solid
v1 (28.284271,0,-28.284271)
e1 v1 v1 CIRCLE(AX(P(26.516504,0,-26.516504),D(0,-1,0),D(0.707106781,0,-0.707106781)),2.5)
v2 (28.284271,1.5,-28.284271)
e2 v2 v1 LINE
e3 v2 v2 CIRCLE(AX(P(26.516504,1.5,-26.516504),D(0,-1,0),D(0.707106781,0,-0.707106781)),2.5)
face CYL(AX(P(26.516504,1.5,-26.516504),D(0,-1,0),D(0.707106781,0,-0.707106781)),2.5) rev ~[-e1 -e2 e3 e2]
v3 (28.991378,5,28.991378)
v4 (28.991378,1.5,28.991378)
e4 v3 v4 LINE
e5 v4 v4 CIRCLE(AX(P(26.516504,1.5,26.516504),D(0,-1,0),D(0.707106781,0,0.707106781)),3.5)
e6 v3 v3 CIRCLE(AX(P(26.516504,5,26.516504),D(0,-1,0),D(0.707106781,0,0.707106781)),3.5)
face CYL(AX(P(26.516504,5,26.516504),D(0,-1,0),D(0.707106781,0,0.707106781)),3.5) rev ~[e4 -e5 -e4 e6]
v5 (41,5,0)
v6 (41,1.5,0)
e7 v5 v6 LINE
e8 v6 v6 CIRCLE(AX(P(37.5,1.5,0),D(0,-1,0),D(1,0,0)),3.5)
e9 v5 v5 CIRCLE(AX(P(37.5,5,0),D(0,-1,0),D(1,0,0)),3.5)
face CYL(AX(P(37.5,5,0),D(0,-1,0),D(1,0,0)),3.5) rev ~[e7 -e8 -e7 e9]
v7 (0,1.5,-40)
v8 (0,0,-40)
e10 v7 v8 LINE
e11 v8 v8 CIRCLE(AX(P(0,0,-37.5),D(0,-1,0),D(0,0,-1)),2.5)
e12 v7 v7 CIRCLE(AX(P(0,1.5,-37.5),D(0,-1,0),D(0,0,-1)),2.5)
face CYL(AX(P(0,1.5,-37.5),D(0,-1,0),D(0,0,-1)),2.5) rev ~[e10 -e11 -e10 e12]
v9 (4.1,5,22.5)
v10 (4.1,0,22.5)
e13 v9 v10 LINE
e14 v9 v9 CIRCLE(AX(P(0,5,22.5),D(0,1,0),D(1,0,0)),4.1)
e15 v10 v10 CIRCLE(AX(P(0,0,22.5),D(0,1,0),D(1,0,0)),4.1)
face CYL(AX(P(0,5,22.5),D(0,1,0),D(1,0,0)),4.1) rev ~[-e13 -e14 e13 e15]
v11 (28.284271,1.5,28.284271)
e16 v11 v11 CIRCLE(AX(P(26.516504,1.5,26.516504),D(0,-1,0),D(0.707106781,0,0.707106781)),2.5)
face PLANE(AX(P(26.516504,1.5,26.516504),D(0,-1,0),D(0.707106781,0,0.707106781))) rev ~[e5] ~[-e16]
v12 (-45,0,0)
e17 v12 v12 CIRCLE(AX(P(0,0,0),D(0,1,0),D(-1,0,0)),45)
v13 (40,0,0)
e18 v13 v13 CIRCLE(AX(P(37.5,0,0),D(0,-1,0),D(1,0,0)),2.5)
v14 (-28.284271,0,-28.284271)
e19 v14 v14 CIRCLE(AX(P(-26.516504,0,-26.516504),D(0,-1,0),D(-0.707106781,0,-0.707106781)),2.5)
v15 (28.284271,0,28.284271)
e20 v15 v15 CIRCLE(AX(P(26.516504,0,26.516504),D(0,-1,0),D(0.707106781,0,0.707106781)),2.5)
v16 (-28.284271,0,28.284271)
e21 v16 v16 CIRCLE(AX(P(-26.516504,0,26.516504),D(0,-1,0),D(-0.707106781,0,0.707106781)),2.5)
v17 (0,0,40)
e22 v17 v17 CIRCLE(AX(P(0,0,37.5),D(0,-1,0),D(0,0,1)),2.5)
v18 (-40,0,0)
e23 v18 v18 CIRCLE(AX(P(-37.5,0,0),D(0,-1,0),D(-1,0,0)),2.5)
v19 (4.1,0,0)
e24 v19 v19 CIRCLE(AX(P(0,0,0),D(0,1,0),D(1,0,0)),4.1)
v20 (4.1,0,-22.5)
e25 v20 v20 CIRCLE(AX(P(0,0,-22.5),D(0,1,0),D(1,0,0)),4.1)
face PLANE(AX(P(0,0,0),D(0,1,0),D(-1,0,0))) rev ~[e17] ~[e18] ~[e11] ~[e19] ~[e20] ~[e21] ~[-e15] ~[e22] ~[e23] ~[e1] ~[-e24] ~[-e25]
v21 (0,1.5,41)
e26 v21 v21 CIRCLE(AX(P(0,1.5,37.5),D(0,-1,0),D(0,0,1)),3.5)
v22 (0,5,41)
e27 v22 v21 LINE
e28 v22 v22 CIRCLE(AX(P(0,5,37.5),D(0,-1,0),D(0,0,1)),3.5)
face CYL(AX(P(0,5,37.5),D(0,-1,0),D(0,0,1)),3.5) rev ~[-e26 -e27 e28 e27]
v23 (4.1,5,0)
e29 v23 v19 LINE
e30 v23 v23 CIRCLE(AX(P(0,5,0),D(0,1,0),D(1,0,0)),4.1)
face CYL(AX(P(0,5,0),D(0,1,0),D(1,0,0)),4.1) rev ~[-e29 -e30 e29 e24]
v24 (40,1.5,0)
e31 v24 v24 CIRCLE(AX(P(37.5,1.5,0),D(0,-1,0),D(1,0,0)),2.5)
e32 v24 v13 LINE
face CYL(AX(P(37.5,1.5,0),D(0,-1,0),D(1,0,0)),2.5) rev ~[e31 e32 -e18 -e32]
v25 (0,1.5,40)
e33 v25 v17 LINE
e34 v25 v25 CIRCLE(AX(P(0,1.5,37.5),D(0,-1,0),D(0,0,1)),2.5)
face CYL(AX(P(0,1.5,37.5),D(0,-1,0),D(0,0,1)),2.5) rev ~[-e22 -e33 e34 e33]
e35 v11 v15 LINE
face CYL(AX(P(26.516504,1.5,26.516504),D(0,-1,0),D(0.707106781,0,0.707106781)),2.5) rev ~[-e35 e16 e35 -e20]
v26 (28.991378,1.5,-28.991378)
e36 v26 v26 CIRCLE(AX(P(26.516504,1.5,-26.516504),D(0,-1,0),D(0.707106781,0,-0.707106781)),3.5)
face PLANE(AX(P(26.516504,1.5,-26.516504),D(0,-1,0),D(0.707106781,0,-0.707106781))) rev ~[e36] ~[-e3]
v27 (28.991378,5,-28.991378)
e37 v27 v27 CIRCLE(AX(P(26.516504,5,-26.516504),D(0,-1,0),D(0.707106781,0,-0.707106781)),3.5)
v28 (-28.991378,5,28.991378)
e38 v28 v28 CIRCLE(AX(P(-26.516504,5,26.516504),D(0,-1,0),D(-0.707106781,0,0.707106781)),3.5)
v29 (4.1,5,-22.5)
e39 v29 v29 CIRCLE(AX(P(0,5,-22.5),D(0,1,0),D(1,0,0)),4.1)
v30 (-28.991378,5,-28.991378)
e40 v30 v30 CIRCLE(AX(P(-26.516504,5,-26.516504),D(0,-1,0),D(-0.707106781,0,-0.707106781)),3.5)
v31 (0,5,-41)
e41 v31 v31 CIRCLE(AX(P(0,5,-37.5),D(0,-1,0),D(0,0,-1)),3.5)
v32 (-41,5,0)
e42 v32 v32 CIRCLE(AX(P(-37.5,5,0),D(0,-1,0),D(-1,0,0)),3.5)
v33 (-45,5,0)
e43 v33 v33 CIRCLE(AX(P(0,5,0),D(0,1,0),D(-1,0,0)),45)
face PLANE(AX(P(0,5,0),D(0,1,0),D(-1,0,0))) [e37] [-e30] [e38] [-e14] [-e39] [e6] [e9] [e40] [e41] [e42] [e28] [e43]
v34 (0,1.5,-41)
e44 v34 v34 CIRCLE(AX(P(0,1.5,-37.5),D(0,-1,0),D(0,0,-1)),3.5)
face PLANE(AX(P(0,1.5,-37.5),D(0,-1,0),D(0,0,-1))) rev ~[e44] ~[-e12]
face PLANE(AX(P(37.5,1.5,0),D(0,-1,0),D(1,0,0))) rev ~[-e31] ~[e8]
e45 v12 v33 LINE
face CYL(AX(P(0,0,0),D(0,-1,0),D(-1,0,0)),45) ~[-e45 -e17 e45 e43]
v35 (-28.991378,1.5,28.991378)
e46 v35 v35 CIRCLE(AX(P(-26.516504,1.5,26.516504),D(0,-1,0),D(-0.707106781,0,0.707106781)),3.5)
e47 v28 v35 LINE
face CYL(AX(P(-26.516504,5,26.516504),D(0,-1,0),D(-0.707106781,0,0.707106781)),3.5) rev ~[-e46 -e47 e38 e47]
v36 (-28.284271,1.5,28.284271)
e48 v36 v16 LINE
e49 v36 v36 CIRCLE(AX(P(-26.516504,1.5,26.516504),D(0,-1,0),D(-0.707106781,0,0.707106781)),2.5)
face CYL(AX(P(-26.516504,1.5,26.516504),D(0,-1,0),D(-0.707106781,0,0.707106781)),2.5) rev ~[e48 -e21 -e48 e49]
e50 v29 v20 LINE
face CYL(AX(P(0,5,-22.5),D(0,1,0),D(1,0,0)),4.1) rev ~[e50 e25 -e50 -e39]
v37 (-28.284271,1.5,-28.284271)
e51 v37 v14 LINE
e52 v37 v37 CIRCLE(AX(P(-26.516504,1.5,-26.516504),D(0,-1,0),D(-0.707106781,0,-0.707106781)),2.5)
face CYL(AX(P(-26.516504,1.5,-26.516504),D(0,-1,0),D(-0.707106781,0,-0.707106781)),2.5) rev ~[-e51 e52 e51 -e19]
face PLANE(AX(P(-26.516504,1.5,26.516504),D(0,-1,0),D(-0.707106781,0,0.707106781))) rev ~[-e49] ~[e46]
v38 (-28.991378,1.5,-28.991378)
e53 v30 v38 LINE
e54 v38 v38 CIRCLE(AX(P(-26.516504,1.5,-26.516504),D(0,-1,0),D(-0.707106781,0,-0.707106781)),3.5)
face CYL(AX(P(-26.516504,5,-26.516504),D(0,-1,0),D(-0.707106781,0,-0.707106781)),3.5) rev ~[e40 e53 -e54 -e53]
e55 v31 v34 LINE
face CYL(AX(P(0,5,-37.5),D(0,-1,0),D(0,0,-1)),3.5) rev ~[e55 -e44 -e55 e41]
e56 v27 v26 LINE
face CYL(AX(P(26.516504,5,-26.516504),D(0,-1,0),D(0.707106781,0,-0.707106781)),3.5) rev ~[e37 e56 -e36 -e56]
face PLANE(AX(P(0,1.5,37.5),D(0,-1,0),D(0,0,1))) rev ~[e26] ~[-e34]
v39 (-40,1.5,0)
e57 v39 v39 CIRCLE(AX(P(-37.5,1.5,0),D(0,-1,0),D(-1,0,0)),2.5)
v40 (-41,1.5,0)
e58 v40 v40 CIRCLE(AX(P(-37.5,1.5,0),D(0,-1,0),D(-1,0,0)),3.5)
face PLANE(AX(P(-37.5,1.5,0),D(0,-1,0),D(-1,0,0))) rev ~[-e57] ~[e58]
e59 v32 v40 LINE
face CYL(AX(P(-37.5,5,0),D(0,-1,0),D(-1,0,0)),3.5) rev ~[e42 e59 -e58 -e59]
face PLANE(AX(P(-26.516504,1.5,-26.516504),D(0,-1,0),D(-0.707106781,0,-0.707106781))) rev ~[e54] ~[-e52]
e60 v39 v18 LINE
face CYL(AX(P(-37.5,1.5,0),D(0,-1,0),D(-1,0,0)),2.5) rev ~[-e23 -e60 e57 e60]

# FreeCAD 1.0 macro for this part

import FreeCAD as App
import Part
import Sketcher

V = App.Vector

doc = App.newDocument("Part")
body = doc.addObject("PartDesign::Body", "Body")

# Sketch on XZ plane
sketch1 = body.newObject("Sketcher::SketchObject", "Sketch")
sketch1.AttachmentSupport = (doc.getObject("XZ_Plane"), [""])
sketch1.MapMode = "FlatFace"
sketch1.addGeometry(Part.Circle(V(0, 0, 0), V(0, 0, 1), 45), False)
sketch1.addConstraint(Sketcher.Constraint("Coincident", 0, 3, -1, 1))
sketch1.addConstraint(Sketcher.Constraint("Diameter", 0, 90.0))
pad1 = body.newObject("PartDesign::Pad", "Pad")
pad1.Profile = sketch1
pad1.Length = 5
pad1.Reversed = True

# Sketch on XZ plane
sketch2 = body.newObject("Sketcher::SketchObject", "Sketch001")
sketch2.AttachmentSupport = (doc.getObject("XZ_Plane"), [""])
sketch2.MapMode = "FlatFace"
sketch2.AttachmentOffset = App.Placement(V(0, 0, -5), App.Rotation())
sketch2.addGeometry(Part.Circle(V(0, 22.5, 0), V(0, 0, 1), 4.1), False)
sketch2.addGeometry(Part.Circle(V(0, -22.5, 0), V(0, 0, 1), 4.1), False)
sketch2.addGeometry(Part.Circle(V(0, 0, 0), V(0, 0, 1), 4.1), False)
sketch2.addConstraint(Sketcher.Constraint("Coincident", 2, 3, -1, 1))
sketch2.addConstraint(Sketcher.Constraint("Equal", 0, 1))
sketch2.addConstraint(Sketcher.Constraint("Equal", 1, 2))
sketch2.addConstraint(Sketcher.Constraint("Symmetric", 0, 3, 1, 3, -1, 1))
sketch2.addConstraint(Sketcher.Constraint("PointOnObject", 0, 3, -2))
sketch2.addConstraint(Sketcher.Constraint("Diameter", 0, 8.2))
sketch2.addConstraint(Sketcher.Constraint("DistanceY", 1, 3, 0, 3, 45.0))
pocket1 = body.newObject("PartDesign::Pocket", "Pocket")
pocket1.Profile = sketch2
pocket1.Length = 5
pocket1.Reversed = True

# Sketch on XZ plane
sketch3 = body.newObject("Sketcher::SketchObject", "Sketch002")
sketch3.AttachmentSupport = (doc.getObject("XZ_Plane"), [""])
sketch3.MapMode = "FlatFace"
sketch3.AttachmentOffset = App.Placement(V(0, 0, -5), App.Rotation())
sketch3.addGeometry(Part.Circle(V(0, 37.5, 0), V(0, 0, 1), 2.5), False)
sketch3.addConstraint(Sketcher.Constraint("PointOnObject", 0, 3, -2))
sketch3.addConstraint(Sketcher.Constraint("Diameter", 0, 5.0))
sketch3.addConstraint(Sketcher.Constraint("DistanceY", -1, 1, 0, 3, 37.5))
doc.recompute()
hole = body.newObject("PartDesign::Hole", "Hole")
hole.Profile = sketch3
hole.ThreadType = "None"
hole.Diameter = 5
hole.DepthType = "ThroughAll"
hole.HoleCutType = "Counterbore"
hole.HoleCutDiameter = 7
hole.HoleCutDepth = 3.5
hole.Reversed = True
doc.recompute()

polarpattern = body.newObject("PartDesign::PolarPattern", "PolarPattern")
polarpattern.Originals = [hole]
polarpattern.Axis = (doc.getObject("Y_Axis"), [""])
polarpattern.Angle = 360
polarpattern.Occurrences = 8
body.Tip = polarpattern

doc.recompute()
